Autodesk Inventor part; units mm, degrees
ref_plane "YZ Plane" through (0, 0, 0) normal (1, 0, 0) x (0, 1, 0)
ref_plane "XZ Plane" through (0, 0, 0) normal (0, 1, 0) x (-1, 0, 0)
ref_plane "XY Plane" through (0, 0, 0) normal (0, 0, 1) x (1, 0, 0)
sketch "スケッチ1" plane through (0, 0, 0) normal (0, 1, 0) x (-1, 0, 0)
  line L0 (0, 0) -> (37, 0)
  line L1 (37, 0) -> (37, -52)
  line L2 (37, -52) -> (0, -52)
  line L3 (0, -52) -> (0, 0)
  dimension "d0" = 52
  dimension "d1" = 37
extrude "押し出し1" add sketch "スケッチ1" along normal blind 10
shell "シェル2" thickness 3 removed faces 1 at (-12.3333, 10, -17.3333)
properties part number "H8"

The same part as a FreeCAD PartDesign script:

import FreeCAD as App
import Part
import Sketcher


def faces_at(feature, points):
    """Names of the faces that lie closest to the given points."""
    faces = feature.Shape.Faces
    near = lambda p: min(range(len(faces)), key=lambda i: faces[i].distToShape(Part.Vertex(*p))[0])
    return sorted({f"Face{near(p) + 1}" for p in points})


def add_polygon(sketch, points):
    """Adds a closed chain of lines whose ends are joined by coincident constraints."""
    first, n = sketch.GeometryCount, len(points)
    for a, b in zip(points, points[1:] + points[:1]):
        sketch.addGeometry(Part.LineSegment(App.Vector(*a, 0), App.Vector(*b, 0)), False)
    for i in range(n):
        sketch.addConstraint(Sketcher.Constraint("Coincident", first + i, 2, first + (i + 1) % n, 1))

doc = App.newDocument("Part")
body = doc.addObject("PartDesign::Body", "Body")

# Sketch on XZ plane
sketch1 = body.newObject("Sketcher::SketchObject", "Sketch")
sketch1.AttachmentSupport = (doc.getObject("XZ_Plane"), [""])
sketch1.MapMode = "FlatFace"
add_polygon(sketch1, [(-37, 0), (0, 0), (0, -52), (-37, -52)])  # lines 0-3
sketch1.addConstraint(Sketcher.Constraint("Horizontal", 0))
sketch1.addConstraint(Sketcher.Constraint("Vertical", 1))
sketch1.addConstraint(Sketcher.Constraint("Horizontal", 2))
sketch1.addConstraint(Sketcher.Constraint("Vertical", 3))
sketch1.addConstraint(Sketcher.Constraint("Coincident", 0, 2, -1, 1))
sketch1.addConstraint(Sketcher.Constraint("DistanceX", 0, 1, 0, 2, 37.0))
sketch1.addConstraint(Sketcher.Constraint("DistanceY", 1, 2, 1, 1, 52.0))
pad1 = body.newObject("PartDesign::Pad", "Pad")
pad1.Profile = sketch1
pad1.Length = 10
pad1.Reversed = True
doc.recompute()

thickness = body.newObject("PartDesign::Thickness", "Thickness")
thickness.Base = (pad1, faces_at(pad1, [(-12.333, 10, -17.333)]))
thickness.Value = 3
thickness.Reversed = True
thickness.Join = "Intersection"

doc.recompute()
